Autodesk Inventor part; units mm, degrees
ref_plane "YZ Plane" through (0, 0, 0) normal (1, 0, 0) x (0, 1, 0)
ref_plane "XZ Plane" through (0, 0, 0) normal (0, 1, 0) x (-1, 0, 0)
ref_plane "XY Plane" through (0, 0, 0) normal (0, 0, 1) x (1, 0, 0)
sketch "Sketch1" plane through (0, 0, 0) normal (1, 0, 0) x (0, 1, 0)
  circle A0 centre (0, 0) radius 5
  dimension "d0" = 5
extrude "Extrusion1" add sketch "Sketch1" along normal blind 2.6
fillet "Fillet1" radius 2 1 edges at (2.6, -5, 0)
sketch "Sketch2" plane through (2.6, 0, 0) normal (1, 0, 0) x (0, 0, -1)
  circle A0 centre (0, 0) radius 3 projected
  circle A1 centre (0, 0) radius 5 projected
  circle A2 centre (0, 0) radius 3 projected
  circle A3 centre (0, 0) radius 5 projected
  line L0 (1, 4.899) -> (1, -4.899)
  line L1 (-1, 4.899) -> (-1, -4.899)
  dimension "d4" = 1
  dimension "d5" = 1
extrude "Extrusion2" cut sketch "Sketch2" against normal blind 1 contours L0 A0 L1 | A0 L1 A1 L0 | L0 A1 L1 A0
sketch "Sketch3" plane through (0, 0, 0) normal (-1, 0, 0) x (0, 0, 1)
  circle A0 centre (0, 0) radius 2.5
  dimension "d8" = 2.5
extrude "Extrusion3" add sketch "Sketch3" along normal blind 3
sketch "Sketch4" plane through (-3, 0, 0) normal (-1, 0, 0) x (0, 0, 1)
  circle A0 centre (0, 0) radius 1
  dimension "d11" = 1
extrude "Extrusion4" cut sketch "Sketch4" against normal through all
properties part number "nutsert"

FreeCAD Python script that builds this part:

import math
import FreeCAD as App
import Part
import Sketcher

V = App.Vector
Q = App.Units.Quantity


def edges_at(feature, points):
    """Names of the edges that pass closest to the given points."""
    edges = feature.Shape.Edges
    near = lambda p: min(range(len(edges)), key=lambda i: edges[i].distToShape(Part.Vertex(*p))[0])
    return sorted({f"Edge{near(p) + 1}" for p in points})

doc = App.newDocument("Part")
body = doc.addObject("PartDesign::Body", "Body")

# Sketch on YZ plane
sketch1 = body.newObject("Sketcher::SketchObject", "Sketch")
sketch1.AttachmentSupport = (doc.getObject("YZ_Plane"), [""])
sketch1.MapMode = "FlatFace"
sketch1.addGeometry(Part.Circle(V(0, 0, 0), V(0, 0, 1), 5), False)
sketch1.addConstraint(Sketcher.Constraint("Coincident", 0, 3, -1, 1))
sketch1.addConstraint(Sketcher.Constraint("Diameter", 0, Q("10 mm")))
pad1 = body.newObject("PartDesign::Pad", "Pad")
pad1.Profile = sketch1
pad1.Length = 2.6
doc.recompute()

fillet = body.newObject("PartDesign::Fillet", "Fillet")
fillet.Base = (pad1, edges_at(pad1, [(2.6, -5, 0)]))
fillet.Radius = 2

# Sketch on YZ plane
sketch2 = body.newObject("Sketcher::SketchObject", "Sketch001")
sketch2.AttachmentSupport = (doc.getObject("YZ_Plane"), [""])
sketch2.MapMode = "FlatFace"
sketch2.AttachmentOffset = App.Placement(V(0, 0, 2.6), App.Rotation())
sketch2.addGeometry(Part.ArcOfCircle(Part.Circle(V(0, 0, 0), V(0, 0, 1), 5), math.radians(-12), math.radians(12)), False)
sketch2.addGeometry(Part.LineSegment(V(4.9, 1, 0), V(-4.9, 1, 0)), False)
sketch2.addGeometry(Part.ArcOfCircle(Part.Circle(V(0, 0, 0), V(0, 0, 1), 5), math.radians(168), math.radians(192)), False)
sketch2.addGeometry(Part.LineSegment(V(-4.9, -1, 0), V(4.9, -1, 0)), False)
sketch2.addConstraint(Sketcher.Constraint("Coincident", 0, 2, 1, 1))
sketch2.addConstraint(Sketcher.Constraint("Coincident", 1, 2, 2, 1))
sketch2.addConstraint(Sketcher.Constraint("Coincident", 2, 2, 3, 1))
sketch2.addConstraint(Sketcher.Constraint("Coincident", 3, 2, 0, 1))
sketch2.addConstraint(Sketcher.Constraint("Horizontal", 1))
sketch2.addConstraint(Sketcher.Constraint("Horizontal", 3))
sketch2.addConstraint(Sketcher.Constraint("Coincident", 0, 3, -1, 1))
sketch2.addConstraint(Sketcher.Constraint("Coincident", 2, 3, -1, 1))
sketch2.addConstraint(Sketcher.Constraint("Equal", 0, 2))
sketch2.addConstraint(Sketcher.Constraint("Vertical", 1, 2, 2, 2))
sketch2.addConstraint(Sketcher.Constraint("DistanceY", -1, 1, 0, 2, Q("1 mm")))
sketch2.addConstraint(Sketcher.Constraint("Radius", 0, Q("5 mm")))
pocket1 = body.newObject("PartDesign::Pocket", "Pocket")
pocket1.Profile = sketch2
pocket1.Length = 1

# Sketch on YZ plane
sketch3 = body.newObject("Sketcher::SketchObject", "Sketch002")
sketch3.AttachmentSupport = (doc.getObject("YZ_Plane"), [""])
sketch3.MapMode = "FlatFace"
sketch3.addGeometry(Part.Circle(V(0, 0, 0), V(0, 0, 1), 2.5), False)
sketch3.addConstraint(Sketcher.Constraint("Coincident", 0, 3, -1, 1))
sketch3.addConstraint(Sketcher.Constraint("Diameter", 0, Q("5 mm")))
pad2 = body.newObject("PartDesign::Pad", "Pad001")
pad2.Profile = sketch3
pad2.Length = 3
pad2.Reversed = True

# Sketch on YZ plane
sketch4 = body.newObject("Sketcher::SketchObject", "Sketch003")
sketch4.AttachmentSupport = (doc.getObject("YZ_Plane"), [""])
sketch4.MapMode = "FlatFace"
sketch4.AttachmentOffset = App.Placement(V(0, 0, -3), App.Rotation())
sketch4.addGeometry(Part.Circle(V(0, 0, 0), V(0, 0, 1), 1), False)
sketch4.addConstraint(Sketcher.Constraint("Coincident", 0, 3, -1, 1))
sketch4.addConstraint(Sketcher.Constraint("Diameter", 0, Q("2 mm")))
pocket2 = body.newObject("PartDesign::Pocket", "Pocket001")
pocket2.Profile = sketch4
pocket2.Type = "ThroughAll"
pocket2.Reversed = True

doc.recompute()
